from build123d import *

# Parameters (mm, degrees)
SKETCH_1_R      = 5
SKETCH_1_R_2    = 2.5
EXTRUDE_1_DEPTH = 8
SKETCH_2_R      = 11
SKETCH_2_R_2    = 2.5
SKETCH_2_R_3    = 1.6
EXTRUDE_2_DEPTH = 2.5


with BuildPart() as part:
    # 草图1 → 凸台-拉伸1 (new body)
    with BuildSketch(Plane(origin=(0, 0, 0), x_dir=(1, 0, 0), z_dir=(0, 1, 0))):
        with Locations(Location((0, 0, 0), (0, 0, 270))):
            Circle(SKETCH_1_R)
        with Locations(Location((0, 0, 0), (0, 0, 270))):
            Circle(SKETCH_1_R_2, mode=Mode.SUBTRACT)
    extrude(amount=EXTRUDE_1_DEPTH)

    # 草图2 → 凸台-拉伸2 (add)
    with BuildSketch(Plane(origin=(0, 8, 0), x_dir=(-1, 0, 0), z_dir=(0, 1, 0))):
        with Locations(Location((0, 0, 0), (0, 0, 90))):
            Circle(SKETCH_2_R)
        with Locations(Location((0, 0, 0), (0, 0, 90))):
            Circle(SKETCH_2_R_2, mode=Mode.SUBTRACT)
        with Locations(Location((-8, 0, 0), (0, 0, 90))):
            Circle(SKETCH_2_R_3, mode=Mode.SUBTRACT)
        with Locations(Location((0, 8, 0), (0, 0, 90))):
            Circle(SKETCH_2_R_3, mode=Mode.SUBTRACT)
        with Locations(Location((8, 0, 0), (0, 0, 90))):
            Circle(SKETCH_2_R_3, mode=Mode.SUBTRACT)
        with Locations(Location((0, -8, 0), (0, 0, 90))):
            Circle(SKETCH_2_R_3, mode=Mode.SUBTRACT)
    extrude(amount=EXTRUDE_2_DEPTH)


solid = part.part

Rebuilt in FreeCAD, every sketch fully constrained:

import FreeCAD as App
import Part
import Sketcher

doc = App.newDocument("Part")
body = doc.addObject("PartDesign::Body", "Body")

# Sketch on XZ plane
sketch1 = body.newObject("Sketcher::SketchObject", "Sketch")
sketch1.AttachmentSupport = (doc.getObject("XZ_Plane"), [""])
sketch1.MapMode = "FlatFace"
sketch1.addGeometry([
    Part.Circle(App.Vector(0, 0, 0), App.Vector(0, 0, 1), 5),
    Part.Circle(App.Vector(0, 0, 0), App.Vector(0, 0, 1), 2.5),
], False)
sketch1.addConstraint([
    Sketcher.Constraint("Coincident", 0, 3, -1, 1),
    Sketcher.Constraint("Coincident", 1, 3, -1, 1),
    Sketcher.Constraint("Diameter", 0, 10.0),
    Sketcher.Constraint("Diameter", 1, 5.0),
])
pad1 = body.newObject("PartDesign::Pad", "Pad")
pad1.Profile = sketch1
pad1.Length = 8
pad1.Reversed = True

# Sketch on XZ plane
sketch2 = body.newObject("Sketcher::SketchObject", "Sketch001")
sketch2.AttachmentSupport = (doc.getObject("XZ_Plane"), [""])
sketch2.MapMode = "FlatFace"
sketch2.AttachmentOffset = App.Placement(App.Vector(0, 0, -8), App.Rotation())
sketch2.addGeometry([
    Part.Circle(App.Vector(0, 0, 0), App.Vector(0, 0, 1), 11),  # 0
    Part.Circle(App.Vector(0, -8, 0), App.Vector(0, 0, 1), 1.6),  # 1
    Part.Circle(App.Vector(-8, 0, 0), App.Vector(0, 0, 1), 1.6),  # 2
    Part.Circle(App.Vector(8, 0, 0), App.Vector(0, 0, 1), 1.6),  # 3
    Part.Circle(App.Vector(0, 0, 0), App.Vector(0, 0, 1), 2.5),  # 4
    Part.Circle(App.Vector(0, 8, 0), App.Vector(0, 0, 1), 1.6),  # 5
], False)
sketch2.addConstraint([
    Sketcher.Constraint("Coincident", 0, 3, -1, 1),
    Sketcher.Constraint("Coincident", 4, 3, -1, 1),
    Sketcher.Constraint("Equal", 1, 2),
    Sketcher.Constraint("Equal", 2, 3),
    Sketcher.Constraint("Equal", 3, 5),
    Sketcher.Constraint("Symmetric", 2, 3, 3, 3, -1, 1),
    Sketcher.Constraint("Symmetric", 1, 3, 5, 3, -1, 1),
    Sketcher.Constraint("PointOnObject", 1, 3, -2),
    Sketcher.Constraint("PointOnObject", 2, 3, -1),
    Sketcher.Constraint("Diameter", 0, 22.0),
    Sketcher.Constraint("Diameter", 4, 5.0),
    Sketcher.Constraint("Diameter", 1, 3.2),
    Sketcher.Constraint("DistanceY", 1, 3, -1, 1, 8.0),
    Sketcher.Constraint("DistanceX", 2, 3, -1, 1, 8.0),
])
pad2 = body.newObject("PartDesign::Pad", "Pad001")
pad2.Profile = sketch2
pad2.Length = 2.5
pad2.Reversed = True

doc.recompute()
